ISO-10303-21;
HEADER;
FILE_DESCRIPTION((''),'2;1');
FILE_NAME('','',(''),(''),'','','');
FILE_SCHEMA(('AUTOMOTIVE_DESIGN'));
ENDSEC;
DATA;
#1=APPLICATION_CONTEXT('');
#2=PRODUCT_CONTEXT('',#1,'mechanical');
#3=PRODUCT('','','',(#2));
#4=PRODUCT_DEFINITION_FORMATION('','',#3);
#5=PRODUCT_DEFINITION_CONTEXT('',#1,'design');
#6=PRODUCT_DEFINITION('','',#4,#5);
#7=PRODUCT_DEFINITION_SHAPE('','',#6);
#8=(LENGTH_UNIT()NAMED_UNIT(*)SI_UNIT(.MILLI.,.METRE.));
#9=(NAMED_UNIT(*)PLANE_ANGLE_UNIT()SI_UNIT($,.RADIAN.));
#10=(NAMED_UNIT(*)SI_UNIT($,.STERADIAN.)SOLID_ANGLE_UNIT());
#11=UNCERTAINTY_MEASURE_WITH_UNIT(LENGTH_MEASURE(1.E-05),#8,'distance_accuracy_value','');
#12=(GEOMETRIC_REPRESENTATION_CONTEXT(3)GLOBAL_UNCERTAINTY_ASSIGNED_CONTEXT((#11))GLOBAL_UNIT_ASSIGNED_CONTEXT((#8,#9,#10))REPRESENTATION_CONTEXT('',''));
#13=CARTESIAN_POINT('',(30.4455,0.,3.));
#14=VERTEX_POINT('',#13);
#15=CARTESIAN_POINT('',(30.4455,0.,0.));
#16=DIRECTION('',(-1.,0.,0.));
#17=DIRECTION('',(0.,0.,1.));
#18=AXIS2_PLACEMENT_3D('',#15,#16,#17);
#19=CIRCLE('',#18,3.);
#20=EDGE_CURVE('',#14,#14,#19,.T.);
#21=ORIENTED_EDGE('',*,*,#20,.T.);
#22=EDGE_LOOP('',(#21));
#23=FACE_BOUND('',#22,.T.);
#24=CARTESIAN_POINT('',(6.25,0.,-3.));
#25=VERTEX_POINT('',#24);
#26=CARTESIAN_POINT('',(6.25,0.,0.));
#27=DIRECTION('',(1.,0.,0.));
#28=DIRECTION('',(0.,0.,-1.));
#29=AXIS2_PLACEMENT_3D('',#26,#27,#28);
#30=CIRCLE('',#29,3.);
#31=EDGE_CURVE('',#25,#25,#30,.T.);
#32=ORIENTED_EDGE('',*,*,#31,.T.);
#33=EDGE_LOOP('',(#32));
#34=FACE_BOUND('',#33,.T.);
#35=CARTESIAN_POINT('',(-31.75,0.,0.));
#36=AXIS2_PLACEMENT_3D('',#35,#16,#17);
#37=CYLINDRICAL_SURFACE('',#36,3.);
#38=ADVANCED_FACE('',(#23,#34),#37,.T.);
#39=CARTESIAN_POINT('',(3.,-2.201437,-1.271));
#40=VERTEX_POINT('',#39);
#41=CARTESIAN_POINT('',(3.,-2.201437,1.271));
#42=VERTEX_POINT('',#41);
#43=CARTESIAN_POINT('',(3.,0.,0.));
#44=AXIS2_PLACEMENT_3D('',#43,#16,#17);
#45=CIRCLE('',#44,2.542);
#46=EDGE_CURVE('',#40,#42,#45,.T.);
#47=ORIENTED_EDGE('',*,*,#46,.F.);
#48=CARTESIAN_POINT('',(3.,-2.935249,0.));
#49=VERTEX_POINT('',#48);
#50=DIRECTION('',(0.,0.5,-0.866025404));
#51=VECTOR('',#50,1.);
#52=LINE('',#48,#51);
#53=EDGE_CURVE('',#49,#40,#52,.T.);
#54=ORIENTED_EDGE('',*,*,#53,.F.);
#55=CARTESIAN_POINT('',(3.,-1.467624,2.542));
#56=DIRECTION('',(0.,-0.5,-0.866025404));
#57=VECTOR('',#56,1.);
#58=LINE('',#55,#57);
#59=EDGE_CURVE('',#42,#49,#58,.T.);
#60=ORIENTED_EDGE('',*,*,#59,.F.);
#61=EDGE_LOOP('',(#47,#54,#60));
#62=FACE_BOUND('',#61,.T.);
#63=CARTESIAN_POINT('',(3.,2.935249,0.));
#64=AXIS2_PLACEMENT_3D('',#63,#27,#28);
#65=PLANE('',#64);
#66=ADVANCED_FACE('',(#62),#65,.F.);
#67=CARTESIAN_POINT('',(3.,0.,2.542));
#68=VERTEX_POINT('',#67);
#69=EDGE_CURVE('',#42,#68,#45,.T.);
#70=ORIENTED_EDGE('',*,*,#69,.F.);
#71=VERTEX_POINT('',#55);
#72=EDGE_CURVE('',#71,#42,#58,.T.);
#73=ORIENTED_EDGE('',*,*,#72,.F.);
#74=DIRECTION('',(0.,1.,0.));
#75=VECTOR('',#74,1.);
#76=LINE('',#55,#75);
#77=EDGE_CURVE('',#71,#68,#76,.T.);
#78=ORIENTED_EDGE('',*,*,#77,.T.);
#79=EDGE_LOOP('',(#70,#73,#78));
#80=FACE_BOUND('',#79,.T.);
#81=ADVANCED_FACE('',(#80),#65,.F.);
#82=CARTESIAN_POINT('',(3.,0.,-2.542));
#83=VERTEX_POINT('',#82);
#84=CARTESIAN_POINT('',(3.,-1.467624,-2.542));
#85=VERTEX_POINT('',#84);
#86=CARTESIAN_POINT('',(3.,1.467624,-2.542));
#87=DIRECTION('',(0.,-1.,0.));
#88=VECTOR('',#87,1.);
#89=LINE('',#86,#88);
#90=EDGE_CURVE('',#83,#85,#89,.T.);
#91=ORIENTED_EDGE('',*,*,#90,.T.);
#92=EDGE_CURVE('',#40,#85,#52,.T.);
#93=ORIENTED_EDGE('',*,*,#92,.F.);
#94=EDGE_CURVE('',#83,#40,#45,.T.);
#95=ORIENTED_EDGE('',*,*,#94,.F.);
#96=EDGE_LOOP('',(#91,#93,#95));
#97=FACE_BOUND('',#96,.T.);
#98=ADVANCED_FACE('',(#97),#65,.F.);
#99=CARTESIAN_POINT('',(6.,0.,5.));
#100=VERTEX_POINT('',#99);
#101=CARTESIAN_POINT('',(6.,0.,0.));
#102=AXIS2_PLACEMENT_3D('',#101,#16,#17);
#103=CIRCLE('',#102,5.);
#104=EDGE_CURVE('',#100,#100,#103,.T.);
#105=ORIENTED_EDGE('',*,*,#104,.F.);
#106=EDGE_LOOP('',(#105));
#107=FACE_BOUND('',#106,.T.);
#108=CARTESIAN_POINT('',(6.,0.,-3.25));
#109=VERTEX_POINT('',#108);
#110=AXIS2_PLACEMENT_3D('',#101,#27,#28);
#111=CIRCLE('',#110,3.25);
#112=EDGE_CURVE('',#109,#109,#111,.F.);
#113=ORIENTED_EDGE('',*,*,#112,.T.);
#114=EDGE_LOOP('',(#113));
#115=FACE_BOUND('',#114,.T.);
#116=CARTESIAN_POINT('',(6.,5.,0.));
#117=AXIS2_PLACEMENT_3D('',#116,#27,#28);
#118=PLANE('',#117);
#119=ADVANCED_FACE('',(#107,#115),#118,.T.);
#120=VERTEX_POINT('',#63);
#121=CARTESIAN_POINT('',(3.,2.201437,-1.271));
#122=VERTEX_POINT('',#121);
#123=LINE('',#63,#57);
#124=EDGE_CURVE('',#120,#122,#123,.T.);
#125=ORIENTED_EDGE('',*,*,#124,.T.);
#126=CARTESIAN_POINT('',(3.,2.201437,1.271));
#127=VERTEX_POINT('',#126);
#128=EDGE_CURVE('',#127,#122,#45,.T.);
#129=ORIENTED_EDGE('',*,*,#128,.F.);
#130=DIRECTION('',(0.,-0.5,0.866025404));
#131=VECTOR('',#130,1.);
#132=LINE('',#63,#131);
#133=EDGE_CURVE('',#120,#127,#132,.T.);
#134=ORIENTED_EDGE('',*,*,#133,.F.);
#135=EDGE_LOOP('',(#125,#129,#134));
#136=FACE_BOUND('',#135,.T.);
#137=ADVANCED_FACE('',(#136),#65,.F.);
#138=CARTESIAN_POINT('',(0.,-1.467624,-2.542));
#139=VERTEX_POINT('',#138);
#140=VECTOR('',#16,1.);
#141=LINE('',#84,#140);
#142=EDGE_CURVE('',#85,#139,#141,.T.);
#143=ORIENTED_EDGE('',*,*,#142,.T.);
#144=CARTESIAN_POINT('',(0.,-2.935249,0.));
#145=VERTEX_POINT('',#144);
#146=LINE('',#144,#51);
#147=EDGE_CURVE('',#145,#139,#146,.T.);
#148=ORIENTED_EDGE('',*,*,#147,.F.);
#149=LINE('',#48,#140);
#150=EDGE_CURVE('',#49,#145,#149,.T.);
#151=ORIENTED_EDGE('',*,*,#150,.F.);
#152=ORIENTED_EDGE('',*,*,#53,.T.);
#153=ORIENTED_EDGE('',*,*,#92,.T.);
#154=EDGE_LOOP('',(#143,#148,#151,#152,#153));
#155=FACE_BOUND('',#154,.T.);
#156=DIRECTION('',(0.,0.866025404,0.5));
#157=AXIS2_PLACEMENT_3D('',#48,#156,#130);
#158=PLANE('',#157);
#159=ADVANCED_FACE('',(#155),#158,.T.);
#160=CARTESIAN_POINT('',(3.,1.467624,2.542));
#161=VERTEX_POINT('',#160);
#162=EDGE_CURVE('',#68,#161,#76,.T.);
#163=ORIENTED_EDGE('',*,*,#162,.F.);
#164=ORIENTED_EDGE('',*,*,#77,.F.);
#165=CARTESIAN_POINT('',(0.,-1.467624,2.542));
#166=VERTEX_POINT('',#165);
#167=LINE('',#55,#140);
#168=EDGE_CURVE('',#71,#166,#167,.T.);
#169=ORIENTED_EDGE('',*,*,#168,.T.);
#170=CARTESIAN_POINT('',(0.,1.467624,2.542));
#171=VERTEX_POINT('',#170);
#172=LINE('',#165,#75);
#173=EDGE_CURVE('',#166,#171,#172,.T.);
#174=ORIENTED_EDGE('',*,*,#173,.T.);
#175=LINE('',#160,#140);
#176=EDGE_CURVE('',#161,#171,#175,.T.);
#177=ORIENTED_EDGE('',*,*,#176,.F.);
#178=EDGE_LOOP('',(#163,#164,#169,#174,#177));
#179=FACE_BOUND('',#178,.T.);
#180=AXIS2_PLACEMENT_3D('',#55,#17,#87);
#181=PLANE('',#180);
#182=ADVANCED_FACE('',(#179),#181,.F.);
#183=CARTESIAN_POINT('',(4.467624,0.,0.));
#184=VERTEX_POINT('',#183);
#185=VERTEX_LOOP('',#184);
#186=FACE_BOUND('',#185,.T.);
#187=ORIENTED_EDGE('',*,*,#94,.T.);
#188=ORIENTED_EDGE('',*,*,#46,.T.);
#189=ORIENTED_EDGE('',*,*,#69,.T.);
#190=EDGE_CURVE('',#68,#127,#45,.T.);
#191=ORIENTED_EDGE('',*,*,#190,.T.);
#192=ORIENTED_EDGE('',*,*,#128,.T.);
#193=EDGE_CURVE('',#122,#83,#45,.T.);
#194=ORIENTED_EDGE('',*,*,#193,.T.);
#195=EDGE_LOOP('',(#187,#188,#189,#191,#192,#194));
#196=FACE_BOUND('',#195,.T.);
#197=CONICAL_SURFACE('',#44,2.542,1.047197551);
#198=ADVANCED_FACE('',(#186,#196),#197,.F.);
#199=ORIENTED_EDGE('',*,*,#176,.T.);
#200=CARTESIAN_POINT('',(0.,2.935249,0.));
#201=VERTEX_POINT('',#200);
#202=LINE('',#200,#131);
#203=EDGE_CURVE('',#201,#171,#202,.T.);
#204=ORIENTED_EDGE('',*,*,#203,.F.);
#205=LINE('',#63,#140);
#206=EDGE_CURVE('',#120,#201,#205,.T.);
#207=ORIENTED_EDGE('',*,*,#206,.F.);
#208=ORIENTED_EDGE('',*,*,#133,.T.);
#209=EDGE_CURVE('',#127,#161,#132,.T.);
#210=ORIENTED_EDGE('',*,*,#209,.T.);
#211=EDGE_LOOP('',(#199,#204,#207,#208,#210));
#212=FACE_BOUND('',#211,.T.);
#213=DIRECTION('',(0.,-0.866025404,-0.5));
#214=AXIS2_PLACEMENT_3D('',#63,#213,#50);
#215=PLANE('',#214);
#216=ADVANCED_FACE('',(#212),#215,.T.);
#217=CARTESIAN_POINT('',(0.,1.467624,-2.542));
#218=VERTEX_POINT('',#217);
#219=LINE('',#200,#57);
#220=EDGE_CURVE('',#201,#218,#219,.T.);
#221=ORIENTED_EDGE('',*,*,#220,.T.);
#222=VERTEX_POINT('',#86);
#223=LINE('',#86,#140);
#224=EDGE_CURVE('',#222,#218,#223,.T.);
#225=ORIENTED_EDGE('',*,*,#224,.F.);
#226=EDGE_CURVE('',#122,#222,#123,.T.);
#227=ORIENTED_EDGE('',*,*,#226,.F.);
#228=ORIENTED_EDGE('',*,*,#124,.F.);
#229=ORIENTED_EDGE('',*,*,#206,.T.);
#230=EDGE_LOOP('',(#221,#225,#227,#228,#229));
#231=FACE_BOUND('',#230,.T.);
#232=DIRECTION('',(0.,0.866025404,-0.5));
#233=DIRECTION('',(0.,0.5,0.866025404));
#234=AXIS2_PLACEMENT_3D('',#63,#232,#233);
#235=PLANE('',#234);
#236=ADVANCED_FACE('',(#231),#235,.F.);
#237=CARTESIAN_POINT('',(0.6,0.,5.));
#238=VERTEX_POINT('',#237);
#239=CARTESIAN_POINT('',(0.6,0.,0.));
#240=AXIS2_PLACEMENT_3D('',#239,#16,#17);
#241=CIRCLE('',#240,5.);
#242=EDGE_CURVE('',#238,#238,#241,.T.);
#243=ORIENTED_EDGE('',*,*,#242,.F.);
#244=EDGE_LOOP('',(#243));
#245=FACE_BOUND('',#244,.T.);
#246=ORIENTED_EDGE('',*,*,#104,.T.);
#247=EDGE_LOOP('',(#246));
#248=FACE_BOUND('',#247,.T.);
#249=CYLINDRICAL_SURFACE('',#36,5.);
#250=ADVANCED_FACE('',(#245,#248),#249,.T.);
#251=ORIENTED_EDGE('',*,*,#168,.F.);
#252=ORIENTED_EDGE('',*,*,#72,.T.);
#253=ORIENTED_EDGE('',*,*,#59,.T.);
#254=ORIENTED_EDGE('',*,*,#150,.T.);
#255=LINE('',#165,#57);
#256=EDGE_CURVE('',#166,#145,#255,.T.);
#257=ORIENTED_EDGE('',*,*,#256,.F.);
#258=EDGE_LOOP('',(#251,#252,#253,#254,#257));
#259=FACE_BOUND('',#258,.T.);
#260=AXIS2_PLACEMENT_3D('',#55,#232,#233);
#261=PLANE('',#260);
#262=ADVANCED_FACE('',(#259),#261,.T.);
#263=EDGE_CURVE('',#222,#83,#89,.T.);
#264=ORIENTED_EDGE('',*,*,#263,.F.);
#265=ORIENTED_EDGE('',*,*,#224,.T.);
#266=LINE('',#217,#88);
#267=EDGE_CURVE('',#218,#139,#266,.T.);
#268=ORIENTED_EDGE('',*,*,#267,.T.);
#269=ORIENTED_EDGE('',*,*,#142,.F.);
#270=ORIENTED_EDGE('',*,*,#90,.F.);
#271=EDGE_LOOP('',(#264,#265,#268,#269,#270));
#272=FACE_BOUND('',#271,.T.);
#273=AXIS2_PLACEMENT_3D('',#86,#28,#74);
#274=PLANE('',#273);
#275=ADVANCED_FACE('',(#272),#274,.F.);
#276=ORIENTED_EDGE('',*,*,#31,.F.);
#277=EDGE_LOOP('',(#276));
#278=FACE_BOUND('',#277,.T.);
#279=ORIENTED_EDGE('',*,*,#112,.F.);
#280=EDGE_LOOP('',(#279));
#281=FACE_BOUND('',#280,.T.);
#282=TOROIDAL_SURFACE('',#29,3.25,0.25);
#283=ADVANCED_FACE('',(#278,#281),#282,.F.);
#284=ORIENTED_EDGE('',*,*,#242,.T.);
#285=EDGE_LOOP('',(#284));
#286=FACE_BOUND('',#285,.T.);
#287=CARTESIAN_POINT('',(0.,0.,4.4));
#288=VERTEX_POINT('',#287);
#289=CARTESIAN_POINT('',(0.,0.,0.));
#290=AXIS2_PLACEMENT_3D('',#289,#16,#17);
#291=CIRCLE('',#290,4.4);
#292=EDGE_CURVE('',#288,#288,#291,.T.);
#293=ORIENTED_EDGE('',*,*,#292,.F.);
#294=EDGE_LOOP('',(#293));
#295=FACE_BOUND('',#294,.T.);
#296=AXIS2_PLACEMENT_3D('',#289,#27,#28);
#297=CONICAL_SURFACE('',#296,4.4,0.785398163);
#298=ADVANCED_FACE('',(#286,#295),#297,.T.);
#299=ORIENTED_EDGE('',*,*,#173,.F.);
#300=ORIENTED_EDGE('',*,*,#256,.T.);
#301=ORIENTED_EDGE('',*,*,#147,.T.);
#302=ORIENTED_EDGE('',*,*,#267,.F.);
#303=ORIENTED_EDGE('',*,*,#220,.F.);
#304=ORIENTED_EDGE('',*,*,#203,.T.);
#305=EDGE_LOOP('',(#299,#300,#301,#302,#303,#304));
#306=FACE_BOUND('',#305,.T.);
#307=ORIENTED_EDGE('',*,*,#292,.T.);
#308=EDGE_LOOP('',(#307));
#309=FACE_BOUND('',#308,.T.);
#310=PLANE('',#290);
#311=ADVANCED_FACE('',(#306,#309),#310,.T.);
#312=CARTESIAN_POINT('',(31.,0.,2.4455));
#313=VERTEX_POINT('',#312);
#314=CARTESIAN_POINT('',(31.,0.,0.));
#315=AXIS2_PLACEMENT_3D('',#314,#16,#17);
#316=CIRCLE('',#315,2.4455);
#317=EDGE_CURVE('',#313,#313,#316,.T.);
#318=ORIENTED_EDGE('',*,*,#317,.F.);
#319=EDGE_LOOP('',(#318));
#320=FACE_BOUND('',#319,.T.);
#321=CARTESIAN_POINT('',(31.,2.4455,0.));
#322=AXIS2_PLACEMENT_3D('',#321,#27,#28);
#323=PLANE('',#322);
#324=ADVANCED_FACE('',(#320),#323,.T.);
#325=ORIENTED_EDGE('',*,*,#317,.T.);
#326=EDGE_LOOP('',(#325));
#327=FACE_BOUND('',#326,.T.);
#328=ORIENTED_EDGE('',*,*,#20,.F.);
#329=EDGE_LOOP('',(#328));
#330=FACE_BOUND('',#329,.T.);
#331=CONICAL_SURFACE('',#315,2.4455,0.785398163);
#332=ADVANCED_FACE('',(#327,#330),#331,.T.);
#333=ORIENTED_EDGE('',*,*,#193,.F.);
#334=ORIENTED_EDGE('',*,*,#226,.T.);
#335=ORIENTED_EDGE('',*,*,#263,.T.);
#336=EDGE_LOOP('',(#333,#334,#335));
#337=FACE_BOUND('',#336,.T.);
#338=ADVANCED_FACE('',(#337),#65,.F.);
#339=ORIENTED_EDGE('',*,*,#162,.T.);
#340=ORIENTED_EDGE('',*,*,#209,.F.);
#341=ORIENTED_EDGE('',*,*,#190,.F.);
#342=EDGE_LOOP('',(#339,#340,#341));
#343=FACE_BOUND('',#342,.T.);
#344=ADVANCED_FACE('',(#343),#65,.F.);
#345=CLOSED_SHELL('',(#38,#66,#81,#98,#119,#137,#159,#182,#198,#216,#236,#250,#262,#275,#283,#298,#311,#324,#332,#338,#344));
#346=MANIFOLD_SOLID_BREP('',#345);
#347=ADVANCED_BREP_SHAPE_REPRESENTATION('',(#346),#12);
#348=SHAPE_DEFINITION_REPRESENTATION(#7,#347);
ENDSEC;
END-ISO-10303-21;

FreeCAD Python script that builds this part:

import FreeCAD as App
import Part
import Sketcher
Q = App.Units.Quantity


def edges_at(feature, points):
    """Names of the edges that pass closest to the given points."""
    edges = feature.Shape.Edges
    near = lambda p: min(range(len(edges)), key=lambda i: edges[i].distToShape(Part.Vertex(*p))[0])
    return sorted({f"Edge{near(p) + 1}" for p in points})


def add_polygon(sketch, points):
    """Adds a closed chain of lines whose ends are joined by coincident constraints."""
    first, n = sketch.GeometryCount, len(points)
    for a, b in zip(points, points[1:] + points[:1]):
        sketch.addGeometry(Part.LineSegment(App.Vector(*a, 0), App.Vector(*b, 0)), False)
    for i in range(n):
        sketch.addConstraint(Sketcher.Constraint("Coincident", first + i, 2, first + (i + 1) % n, 1))

doc = App.newDocument("Part")
body = doc.addObject("PartDesign::Body", "Body")

sketch1 = body.newObject("Sketcher::SketchObject", "Sketch")
sketch1.AttachmentSupport = (doc.getObject("XY_Plane"), [""])
sketch1.MapMode = "FlatFace"
add_polygon(sketch1, [(0, 4.4), (0, 0), (31, 0), (31, 2.4), (30.4, 3), (6, 3), (6, 5), (0.6, 5)])
sketch1.addConstraint(Sketcher.Constraint("Vertical", 0))
sketch1.addConstraint(Sketcher.Constraint("Horizontal", 1))
sketch1.addConstraint(Sketcher.Constraint("Vertical", 2))
sketch1.addConstraint(Sketcher.Constraint("Horizontal", 4))
sketch1.addConstraint(Sketcher.Constraint("Vertical", 5))
sketch1.addConstraint(Sketcher.Constraint("Horizontal", 6))
sketch1.addConstraint(Sketcher.Constraint("Coincident", 0, 2, -1, 1))
sketch1.addConstraint(Sketcher.Constraint("Perpendicular", 3, 7))
sketch1.addConstraint(Sketcher.Constraint("DistanceX", 1, 1, 1, 2, Q("31 mm")))
sketch1.addConstraint(Sketcher.Constraint("DistanceY", 5, 1, 5, 2, Q("2 mm")))
sketch1.addConstraint(Sketcher.Constraint("Angle", 3, Q("135 deg")))
sketch1.addConstraint(Sketcher.Constraint("DistanceX", 6, 2, 6, 1, Q("5.4 mm")))
sketch1.addConstraint(Sketcher.Constraint("DistanceY", 0, 2, 0, 1, Q("4.4 mm")))
sketch1.addConstraint(Sketcher.Constraint("DistanceY", -1, 1, 3, 2, Q("3 mm")))
sketch1.addConstraint(Sketcher.Constraint("DistanceX", 4, 2, 4, 1, Q("24.4455 mm")))
revolution = body.newObject("PartDesign::Revolution", "Revolution")
revolution.Profile = sketch1
revolution.ReferenceAxis = (sketch1, ["H_Axis"])
revolution.Angle = 360
doc.recompute()

fillet = body.newObject("PartDesign::Fillet", "Fillet")
fillet.Base = (revolution, edges_at(revolution, [(6, -3, 0)]))
fillet.Radius = 0.25

sketch2 = body.newObject("Sketcher::SketchObject", "Sketch001")
sketch2.AttachmentSupport = (doc.getObject("XY_Plane"), [""])
sketch2.MapMode = "FlatFace"
add_polygon(sketch2, [(3, 2.5), (0, 2.5), (0, 0), (4.5, 0)])
sketch2.addConstraint(Sketcher.Constraint("Horizontal", 0))
sketch2.addConstraint(Sketcher.Constraint("Vertical", 1))
sketch2.addConstraint(Sketcher.Constraint("Horizontal", 2))
sketch2.addConstraint(Sketcher.Constraint("Coincident", 1, 2, -1, 1))
sketch2.addConstraint(Sketcher.Constraint("DistanceX", 0, 2, 0, 1, Q("3 mm")))
sketch2.addConstraint(Sketcher.Constraint("Angle", 3, Q("120 deg")))
sketch2.addConstraint(Sketcher.Constraint("DistanceY", 1, 2, 1, 1, Q("2.542 mm")))
groove = body.newObject("PartDesign::Groove", "Groove")
groove.Profile = sketch2
groove.ReferenceAxis = (sketch2, ["H_Axis"])
groove.Angle = 360

sketch3 = body.newObject("Sketcher::SketchObject", "Sketch002")
sketch3.AttachmentSupport = (doc.getObject("YZ_Plane"), [""])
sketch3.MapMode = "FlatFace"
add_polygon(sketch3, [(2.9, 0), (1.5, -2.5), (-1.5, -2.5), (-2.9, 0), (-1.5, 2.5), (1.5, 2.5)])
sketch3.addConstraint(Sketcher.Constraint("Horizontal", 1))
sketch3.addConstraint(Sketcher.Constraint("Horizontal", 4))
sketch3.addConstraint(Sketcher.Constraint("Symmetric", 0, 2, 3, 2, -1, 1))
sketch3.addConstraint(Sketcher.Constraint("Symmetric", 2, 2, 5, 2, -1, 1))
sketch3.addConstraint(Sketcher.Constraint("PointOnObject", 2, 2, -1))
sketch3.addConstraint(Sketcher.Constraint("Parallel", 2, 5))
sketch3.addConstraint(Sketcher.Constraint("Vertical", 1, 2, 3, 2))
sketch3.addConstraint(Sketcher.Constraint("Angle", 0, Q("-120 deg")))
sketch3.addConstraint(Sketcher.Constraint("DistanceY", 0, 2, -1, 1, Q("2.542 mm")))
sketch3.addConstraint(Sketcher.Constraint("DistanceX", 1, 2, 1, 1, Q("2.935249 mm")))
pocket1 = body.newObject("PartDesign::Pocket", "Pocket")
pocket1.Profile = sketch3
pocket1.Length = 3
pocket1.Reversed = True

doc.recompute()
